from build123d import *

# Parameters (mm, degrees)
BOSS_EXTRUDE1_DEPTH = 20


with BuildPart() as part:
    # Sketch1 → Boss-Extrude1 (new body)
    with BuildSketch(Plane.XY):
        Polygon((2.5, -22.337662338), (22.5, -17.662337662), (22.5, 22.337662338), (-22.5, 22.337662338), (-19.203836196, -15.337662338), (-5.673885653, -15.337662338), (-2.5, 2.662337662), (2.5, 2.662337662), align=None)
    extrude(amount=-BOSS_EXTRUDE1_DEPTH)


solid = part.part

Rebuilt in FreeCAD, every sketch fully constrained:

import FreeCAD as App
import Part
import Sketcher

V = App.Vector
Q = App.Units.Quantity

doc = App.newDocument("Part")
params = doc.addObject("Spreadsheet::Sheet", "Params")
for row, (alias, value) in enumerate([
    ("sketch1_width", "45 mm"),
    ("sketch1_width2", "5 mm"),
    ("sketch1_height", "40 mm"),
    ("sketch1_height2", "25 mm"),
    ("pad1_length", "20 mm"),
], start=1):
    params.set(f"A{row}", alias)
    params.set(f"B{row}", "=" + value)
    params.setAlias(f"B{row}", alias)

body = doc.addObject("PartDesign::Body", "Body")

# Sketch on XY plane
sketch1 = body.newObject("Sketcher::SketchObject", "Sketch")
sketch1.AttachmentSupport = (doc.getObject("XY_Plane"), [""])
sketch1.MapMode = "FlatFace"
sketch1.addGeometry([
    Part.LineSegment(V(2, -22, 0), V(22, -18, 0)),  # 0
    Part.LineSegment(V(22, -18, 0), V(22, 22, 0)),  # 1
    Part.LineSegment(V(22, 22, 0), V(-22, 22, 0)),  # 2
    Part.LineSegment(V(-22, 22, 0), V(-19, -15, 0)),  # 3
    Part.LineSegment(V(-19, -15, 0), V(-6, -15, 0)),  # 4
    Part.LineSegment(V(-6, -15, 0), V(-2, 3, 0)),  # 5
    Part.LineSegment(V(-2, 3, 0), V(2, 3, 0)),  # 6
    Part.LineSegment(V(2, 3, 0), V(2, -22, 0)),  # 7
], False)
sketch1.addConstraint([
    Sketcher.Constraint("Coincident", 0, 2, 1, 1),
    Sketcher.Constraint("Coincident", 1, 2, 2, 1),
    Sketcher.Constraint("Coincident", 2, 2, 3, 1),
    Sketcher.Constraint("Coincident", 3, 2, 4, 1),
    Sketcher.Constraint("Coincident", 4, 2, 5, 1),
    Sketcher.Constraint("Coincident", 5, 2, 6, 1),
    Sketcher.Constraint("Coincident", 6, 2, 7, 1),
    Sketcher.Constraint("Coincident", 7, 2, 0, 1),
    Sketcher.Constraint("Vertical", 1),
    Sketcher.Constraint("Horizontal", 2),
    Sketcher.Constraint("Horizontal", 4),
    Sketcher.Constraint("Horizontal", 6),
    Sketcher.Constraint("Vertical", 7),
    Sketcher.Constraint("DistanceX", 2, 2, 2, 1, 45.0),
    Sketcher.Constraint("DistanceX", 6, 1, 6, 2, 5.0),
    Sketcher.Constraint("DistanceY", 1, 1, 1, 2, 40.0),
    Sketcher.Constraint("DistanceY", 7, 2, 7, 1, 25.0),
    Sketcher.Constraint("Angle", 3, Q("-85 deg")),
    Sketcher.Constraint("Angle", 5, Q("80 deg")),
    Sketcher.Constraint("DistanceY", 4, 2, 5, 2, 18.0),
    Sketcher.Constraint("DistanceX", 2, 2, 5, 2, 20.0),
    Sketcher.Constraint("DistanceX", -1, 1, 0, 2, 22.5),
    Sketcher.Constraint("Distance", 0, 20.539198),
    Sketcher.Constraint("DistanceY", 0, 2, -1, 1, 17.662338),
])
sketch1.setExpression("Constraints[13]", "Params.sketch1_width")
sketch1.setExpression("Constraints[14]", "Params.sketch1_width2")
sketch1.setExpression("Constraints[15]", "Params.sketch1_height")
sketch1.setExpression("Constraints[16]", "Params.sketch1_height2")
pad1 = body.newObject("PartDesign::Pad", "Pad")
pad1.Profile = sketch1
pad1.setExpression("Length", "Params.pad1_length")
pad1.Reversed = True

doc.recompute()
